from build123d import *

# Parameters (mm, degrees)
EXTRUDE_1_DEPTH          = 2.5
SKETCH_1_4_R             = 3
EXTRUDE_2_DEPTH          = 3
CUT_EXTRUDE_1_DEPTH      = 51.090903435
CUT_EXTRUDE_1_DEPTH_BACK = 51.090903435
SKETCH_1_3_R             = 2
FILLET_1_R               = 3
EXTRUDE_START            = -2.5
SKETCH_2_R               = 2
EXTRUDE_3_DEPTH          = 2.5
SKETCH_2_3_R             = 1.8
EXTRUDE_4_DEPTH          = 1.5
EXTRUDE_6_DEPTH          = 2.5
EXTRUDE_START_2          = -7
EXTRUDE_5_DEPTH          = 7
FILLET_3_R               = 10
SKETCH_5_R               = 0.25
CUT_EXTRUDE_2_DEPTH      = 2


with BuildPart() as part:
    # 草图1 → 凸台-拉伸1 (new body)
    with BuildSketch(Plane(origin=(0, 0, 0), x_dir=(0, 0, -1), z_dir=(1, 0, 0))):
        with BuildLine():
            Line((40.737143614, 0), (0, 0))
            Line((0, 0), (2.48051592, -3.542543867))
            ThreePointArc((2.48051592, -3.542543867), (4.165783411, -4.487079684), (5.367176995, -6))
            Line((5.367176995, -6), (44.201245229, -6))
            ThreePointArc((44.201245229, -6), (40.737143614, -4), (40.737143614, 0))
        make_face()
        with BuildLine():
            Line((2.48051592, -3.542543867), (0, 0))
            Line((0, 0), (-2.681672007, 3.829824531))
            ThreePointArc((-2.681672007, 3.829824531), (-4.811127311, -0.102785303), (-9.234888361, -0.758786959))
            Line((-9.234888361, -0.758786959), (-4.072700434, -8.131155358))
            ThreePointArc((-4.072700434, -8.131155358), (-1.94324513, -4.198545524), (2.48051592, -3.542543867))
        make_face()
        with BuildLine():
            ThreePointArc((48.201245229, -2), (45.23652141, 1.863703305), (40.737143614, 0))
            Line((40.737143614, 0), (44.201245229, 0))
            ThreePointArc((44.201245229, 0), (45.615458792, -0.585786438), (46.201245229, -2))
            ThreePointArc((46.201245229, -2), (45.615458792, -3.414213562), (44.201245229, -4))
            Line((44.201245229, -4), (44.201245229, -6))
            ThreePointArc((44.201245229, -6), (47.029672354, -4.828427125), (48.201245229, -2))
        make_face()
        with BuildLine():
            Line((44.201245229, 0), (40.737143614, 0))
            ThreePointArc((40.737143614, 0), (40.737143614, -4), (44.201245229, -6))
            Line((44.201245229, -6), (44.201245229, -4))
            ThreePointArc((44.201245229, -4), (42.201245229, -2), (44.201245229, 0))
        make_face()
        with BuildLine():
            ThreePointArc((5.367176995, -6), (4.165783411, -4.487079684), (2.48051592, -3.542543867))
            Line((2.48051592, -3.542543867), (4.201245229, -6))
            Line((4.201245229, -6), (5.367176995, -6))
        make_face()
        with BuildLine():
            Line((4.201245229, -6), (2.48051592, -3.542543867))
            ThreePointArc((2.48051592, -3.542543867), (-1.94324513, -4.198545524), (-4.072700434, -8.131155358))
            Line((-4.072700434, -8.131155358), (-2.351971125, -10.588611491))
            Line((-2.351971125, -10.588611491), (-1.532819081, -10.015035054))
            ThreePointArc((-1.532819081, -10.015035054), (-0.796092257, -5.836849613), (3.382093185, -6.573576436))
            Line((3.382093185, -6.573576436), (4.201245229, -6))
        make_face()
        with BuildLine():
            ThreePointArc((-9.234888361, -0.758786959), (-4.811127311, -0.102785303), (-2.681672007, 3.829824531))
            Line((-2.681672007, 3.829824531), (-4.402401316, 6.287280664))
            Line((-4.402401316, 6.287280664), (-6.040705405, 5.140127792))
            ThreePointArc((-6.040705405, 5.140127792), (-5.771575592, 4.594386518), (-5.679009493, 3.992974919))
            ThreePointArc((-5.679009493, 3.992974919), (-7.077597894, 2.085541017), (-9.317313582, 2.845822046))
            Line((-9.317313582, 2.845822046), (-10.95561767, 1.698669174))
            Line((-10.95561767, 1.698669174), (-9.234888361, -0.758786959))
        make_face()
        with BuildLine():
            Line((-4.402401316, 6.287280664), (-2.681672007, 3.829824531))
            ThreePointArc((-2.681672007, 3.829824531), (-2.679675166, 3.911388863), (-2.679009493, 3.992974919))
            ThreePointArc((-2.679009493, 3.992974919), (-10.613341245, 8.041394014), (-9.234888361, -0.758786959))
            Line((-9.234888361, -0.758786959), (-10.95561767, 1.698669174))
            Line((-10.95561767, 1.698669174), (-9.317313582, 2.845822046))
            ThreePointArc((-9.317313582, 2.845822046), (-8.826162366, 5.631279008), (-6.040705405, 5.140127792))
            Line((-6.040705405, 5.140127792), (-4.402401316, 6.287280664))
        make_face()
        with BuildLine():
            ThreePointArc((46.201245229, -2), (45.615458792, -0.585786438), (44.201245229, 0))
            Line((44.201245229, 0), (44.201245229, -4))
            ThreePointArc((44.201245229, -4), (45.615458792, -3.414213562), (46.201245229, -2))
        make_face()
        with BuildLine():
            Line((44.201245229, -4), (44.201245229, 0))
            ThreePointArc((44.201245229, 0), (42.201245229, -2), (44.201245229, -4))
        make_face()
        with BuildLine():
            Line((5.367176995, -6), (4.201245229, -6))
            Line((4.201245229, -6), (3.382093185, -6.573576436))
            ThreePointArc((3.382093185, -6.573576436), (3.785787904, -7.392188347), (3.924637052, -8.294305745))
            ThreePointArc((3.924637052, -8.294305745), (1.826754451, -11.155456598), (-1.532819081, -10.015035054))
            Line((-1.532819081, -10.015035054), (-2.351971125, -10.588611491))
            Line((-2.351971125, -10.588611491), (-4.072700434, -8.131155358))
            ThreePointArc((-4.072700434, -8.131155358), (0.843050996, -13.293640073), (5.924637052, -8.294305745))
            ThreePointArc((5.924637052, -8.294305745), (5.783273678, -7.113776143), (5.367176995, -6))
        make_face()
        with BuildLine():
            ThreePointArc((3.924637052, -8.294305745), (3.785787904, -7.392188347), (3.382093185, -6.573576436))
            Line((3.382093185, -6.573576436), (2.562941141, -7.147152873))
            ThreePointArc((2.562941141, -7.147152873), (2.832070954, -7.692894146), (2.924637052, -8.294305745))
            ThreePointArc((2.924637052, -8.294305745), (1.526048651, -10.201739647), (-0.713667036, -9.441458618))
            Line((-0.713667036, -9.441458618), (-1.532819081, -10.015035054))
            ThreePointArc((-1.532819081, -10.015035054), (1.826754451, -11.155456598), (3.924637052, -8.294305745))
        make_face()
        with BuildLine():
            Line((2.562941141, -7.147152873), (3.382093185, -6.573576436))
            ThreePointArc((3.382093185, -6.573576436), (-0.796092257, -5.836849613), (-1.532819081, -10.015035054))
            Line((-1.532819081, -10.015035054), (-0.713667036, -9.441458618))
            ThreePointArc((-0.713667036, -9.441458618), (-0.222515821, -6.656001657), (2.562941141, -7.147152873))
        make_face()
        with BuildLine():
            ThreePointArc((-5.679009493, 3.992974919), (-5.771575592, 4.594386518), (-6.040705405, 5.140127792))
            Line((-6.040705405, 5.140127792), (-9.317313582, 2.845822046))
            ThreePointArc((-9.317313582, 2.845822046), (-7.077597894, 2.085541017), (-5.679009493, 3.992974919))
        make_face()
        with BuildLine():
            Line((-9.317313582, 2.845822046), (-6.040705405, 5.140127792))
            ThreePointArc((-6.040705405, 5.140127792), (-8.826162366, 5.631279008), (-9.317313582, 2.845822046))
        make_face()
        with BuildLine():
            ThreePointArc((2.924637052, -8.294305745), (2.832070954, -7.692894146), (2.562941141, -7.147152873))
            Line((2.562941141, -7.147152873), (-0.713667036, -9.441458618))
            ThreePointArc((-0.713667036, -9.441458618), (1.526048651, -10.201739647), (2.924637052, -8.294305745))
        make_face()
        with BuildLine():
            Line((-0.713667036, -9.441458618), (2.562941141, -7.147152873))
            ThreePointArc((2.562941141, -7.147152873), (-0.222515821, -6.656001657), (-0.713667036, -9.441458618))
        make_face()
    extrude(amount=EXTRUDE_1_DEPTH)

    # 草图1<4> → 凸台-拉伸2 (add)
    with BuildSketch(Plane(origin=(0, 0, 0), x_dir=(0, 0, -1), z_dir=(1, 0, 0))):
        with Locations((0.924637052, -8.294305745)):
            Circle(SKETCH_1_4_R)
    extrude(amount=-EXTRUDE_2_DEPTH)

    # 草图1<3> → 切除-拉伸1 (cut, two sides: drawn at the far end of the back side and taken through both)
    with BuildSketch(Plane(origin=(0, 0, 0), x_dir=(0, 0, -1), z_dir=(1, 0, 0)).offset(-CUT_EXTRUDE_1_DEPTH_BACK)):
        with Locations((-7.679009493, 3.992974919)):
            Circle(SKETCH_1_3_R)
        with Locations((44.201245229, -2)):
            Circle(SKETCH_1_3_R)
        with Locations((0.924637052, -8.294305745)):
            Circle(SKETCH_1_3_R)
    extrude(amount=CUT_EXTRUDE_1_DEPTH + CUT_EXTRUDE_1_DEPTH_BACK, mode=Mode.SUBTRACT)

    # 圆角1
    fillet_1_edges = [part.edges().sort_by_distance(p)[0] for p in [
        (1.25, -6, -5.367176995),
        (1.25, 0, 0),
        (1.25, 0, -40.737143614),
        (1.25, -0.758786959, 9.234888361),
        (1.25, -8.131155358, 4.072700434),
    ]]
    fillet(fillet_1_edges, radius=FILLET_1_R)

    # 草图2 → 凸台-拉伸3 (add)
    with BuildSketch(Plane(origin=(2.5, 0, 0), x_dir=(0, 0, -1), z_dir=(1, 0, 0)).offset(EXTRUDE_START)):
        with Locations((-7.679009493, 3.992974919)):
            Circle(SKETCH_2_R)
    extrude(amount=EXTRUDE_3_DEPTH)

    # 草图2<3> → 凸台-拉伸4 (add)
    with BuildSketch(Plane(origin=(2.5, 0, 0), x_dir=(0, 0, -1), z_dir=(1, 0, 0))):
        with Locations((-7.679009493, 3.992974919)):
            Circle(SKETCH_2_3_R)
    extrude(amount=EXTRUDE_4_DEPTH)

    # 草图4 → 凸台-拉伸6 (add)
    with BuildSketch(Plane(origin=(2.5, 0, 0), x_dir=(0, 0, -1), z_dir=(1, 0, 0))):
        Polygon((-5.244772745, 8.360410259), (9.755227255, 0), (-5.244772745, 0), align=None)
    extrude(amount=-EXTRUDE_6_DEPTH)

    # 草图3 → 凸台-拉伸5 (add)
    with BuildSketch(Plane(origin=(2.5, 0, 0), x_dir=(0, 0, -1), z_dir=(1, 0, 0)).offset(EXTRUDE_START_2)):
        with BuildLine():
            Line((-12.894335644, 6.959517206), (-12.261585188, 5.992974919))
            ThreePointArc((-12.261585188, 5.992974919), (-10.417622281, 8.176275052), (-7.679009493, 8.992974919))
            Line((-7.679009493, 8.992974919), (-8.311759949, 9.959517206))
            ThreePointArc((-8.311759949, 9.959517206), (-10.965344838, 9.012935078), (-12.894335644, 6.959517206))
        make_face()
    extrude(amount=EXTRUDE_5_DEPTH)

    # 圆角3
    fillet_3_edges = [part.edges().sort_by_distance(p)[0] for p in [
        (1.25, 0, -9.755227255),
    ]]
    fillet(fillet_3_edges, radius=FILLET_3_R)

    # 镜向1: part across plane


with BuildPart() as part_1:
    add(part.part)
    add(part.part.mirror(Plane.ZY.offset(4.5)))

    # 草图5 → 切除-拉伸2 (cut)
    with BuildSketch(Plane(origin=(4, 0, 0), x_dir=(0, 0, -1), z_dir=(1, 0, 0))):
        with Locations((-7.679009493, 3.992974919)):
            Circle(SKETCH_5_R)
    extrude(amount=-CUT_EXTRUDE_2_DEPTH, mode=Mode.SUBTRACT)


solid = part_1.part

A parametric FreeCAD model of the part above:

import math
import FreeCAD as App
import Part
import Sketcher
Q = App.Units.Quantity


def edges_at(feature, points):
    """Names of the edges that pass closest to the given points."""
    edges = feature.Shape.Edges
    near = lambda p: min(range(len(edges)), key=lambda i: edges[i].distToShape(Part.Vertex(*p))[0])
    return sorted({f"Edge{near(p) + 1}" for p in points})

doc = App.newDocument("Part")
body = doc.addObject("PartDesign::Body", "Body")

# Sketch on YZ plane
sketch1 = body.newObject("Sketcher::SketchObject", "Sketch")
sketch1.AttachmentSupport = (doc.getObject("YZ_Plane"), [""])
sketch1.MapMode = "FlatFace"
sketch1.addGeometry([
    Part.LineSegment(App.Vector(0, -40.737144, 0), App.Vector(0, 0, 0)),  # 0
    Part.LineSegment(App.Vector(0, 0, 0), App.Vector(3.829825, 2.681672, 0)),  # 1
    Part.ArcOfCircle(Part.Circle(App.Vector(3.992975, 7.679011, 0), App.Vector(0, 0, 1), 5.000001), math.radians(-91.869898), math.radians(-90)),  # 2
    Part.ArcOfCircle(Part.Circle(App.Vector(3.992975, 7.679009, 0), App.Vector(0, 0, 1), 5), math.radians(-90), math.radians(161.869898)),  # 3
    Part.LineSegment(App.Vector(-0.758787, 9.234888, 0), App.Vector(-8.131155, 4.0727, 0)),  # 4
    Part.ArcOfCircle(Part.Circle(App.Vector(-8.294306, -0.924637, 0), App.Vector(0, 0, 1), 5), math.radians(88.130102), math.radians(270)),  # 5
    Part.ArcOfCircle(Part.Circle(App.Vector(-8.294306, -0.924637, 0), App.Vector(0, 0, 1), 5), math.radians(-90), math.radians(-62.686356)),  # 6
    Part.LineSegment(App.Vector(-6, -5.367177, 0), App.Vector(-6, -44.201245, 0)),  # 7
    Part.ArcOfCircle(Part.Circle(App.Vector(-2, -44.201245, 0), App.Vector(0, 0, 1), 4), math.radians(180), math.radians(270)),  # 8
    Part.ArcOfCircle(Part.Circle(App.Vector(-2, -44.201245, 0), App.Vector(0, 0, 1), 4), math.radians(-90), math.radians(60)),  # 9
], False)
sketch1.addConstraint([
    Sketcher.Constraint("Coincident", 0, 2, 1, 1),
    Sketcher.Constraint("Coincident", 1, 2, 2, 1),
    Sketcher.Constraint("Tangent", 2, 2, 3, 1),
    Sketcher.Constraint("Coincident", 3, 2, 4, 1),
    Sketcher.Constraint("Coincident", 4, 2, 5, 1),
    Sketcher.Constraint("Tangent", 5, 2, 6, 1),
    Sketcher.Constraint("Coincident", 6, 2, 7, 1),
    Sketcher.Constraint("Tangent", 7, 2, 8, 1),
    Sketcher.Constraint("Tangent", 8, 2, 9, 1),
    Sketcher.Constraint("Coincident", 9, 2, 0, 1),
    Sketcher.Constraint("Vertical", 0),
    Sketcher.Constraint("Vertical", 7),
    Sketcher.Constraint("Coincident", 0, 2, -1, 1),
    Sketcher.Constraint("Equal", 2, 3),
    Sketcher.Constraint("Equal", 3, 5),
    Sketcher.Constraint("Equal", 5, 6),
    Sketcher.Constraint("Equal", 8, 9),
    Sketcher.Constraint("Parallel", 1, 4),
    Sketcher.Constraint("Vertical", 3, 3, 2, 2),
    Sketcher.Constraint("Vertical", 6, 3, 5, 2),
    Sketcher.Constraint("Vertical", 9, 3, 8, 2),
    Sketcher.Constraint("Radius", 2, 5.000001),
    Sketcher.Constraint("Radius", 8, 4.0),
    Sketcher.Constraint("Angle", 1, Q("35 deg")),
    Sketcher.Constraint("Distance", 4, 9.0),
    Sketcher.Constraint("DistanceX", 8, 3, -1, 1, 2.0),
    Sketcher.Constraint("DistanceY", 7, 2, 7, 1, 38.834068),
    Sketcher.Constraint("DistanceY", -1, 1, 4, 2, 4.0727),
    Sketcher.Constraint("DistanceY", 0, 1, 0, 2, 40.737144),
    Sketcher.Constraint("DistanceY", -1, 1, 2, 3, 7.679011),
    Sketcher.Constraint("DistanceX", 5, 3, 3, 3, 12.287281),
])
pad1 = body.newObject("PartDesign::Pad", "Pad")
pad1.Profile = sketch1
pad1.Length = 2.5

# Sketch on YZ plane
sketch2 = body.newObject("Sketcher::SketchObject", "Sketch001")
sketch2.AttachmentSupport = (doc.getObject("YZ_Plane"), [""])
sketch2.MapMode = "FlatFace"
sketch2.addGeometry(Part.Circle(App.Vector(-8.294306, -0.924637, 0), App.Vector(0, 0, 1), 3), False)
sketch2.addConstraint([
    Sketcher.Constraint("Diameter", 0, 6.0),
    Sketcher.Constraint("DistanceX", 0, 3, -1, 1, 8.294306),
    Sketcher.Constraint("DistanceY", 0, 3, -1, 1, 0.924637),
])
pad2 = body.newObject("PartDesign::Pad", "Pad001")
pad2.Profile = sketch2
pad2.Length = 3
pad2.Reversed = True

# Sketch on YZ plane
sketch3 = body.newObject("Sketcher::SketchObject", "Sketch002")
sketch3.AttachmentSupport = (doc.getObject("YZ_Plane"), [""])
sketch3.MapMode = "FlatFace"
sketch3.addGeometry([
    Part.Circle(App.Vector(3.992975, 7.679009, 0), App.Vector(0, 0, 1), 2),
    Part.Circle(App.Vector(-2, -44.201245, 0), App.Vector(0, 0, 1), 2),
    Part.Circle(App.Vector(-8.294306, -0.924637, 0), App.Vector(0, 0, 1), 2),
], False)
sketch3.addConstraint([
    Sketcher.Constraint("Equal", 0, 1),
    Sketcher.Constraint("Equal", 1, 2),
    Sketcher.Constraint("Diameter", 0, 4.0),
    Sketcher.Constraint("DistanceX", 1, 3, -1, 1, 2.0),
    Sketcher.Constraint("DistanceY", -1, 1, 0, 3, 7.679009),
    Sketcher.Constraint("DistanceX", 2, 3, 0, 3, 12.287281),
    Sketcher.Constraint("DistanceY", 1, 3, 2, 3, 43.276608),
    Sketcher.Constraint("DistanceX", -1, 1, 0, 3, 3.992975),
    Sketcher.Constraint("DistanceY", 1, 3, -1, 1, 44.201245),
])
pocket1 = body.newObject("PartDesign::Pocket", "Pocket")
pocket1.Profile = sketch3
pocket1.Type = "ThroughAll"
pocket1.Midplane = True
doc.recompute()

fillet = body.newObject("PartDesign::Fillet", "Fillet")
fillet.Base = (pocket1, edges_at(pocket1, [
    (1.25, -6, -5.367),
    (1.25, 0, 0),
    (1.25, 0, -40.737),
    (1.25, -0.759, 9.235),
    (1.25, -8.131, 4.073),
]))
fillet.Radius = 3

# Sketch on YZ plane
sketch4 = body.newObject("Sketcher::SketchObject", "Sketch003")
sketch4.AttachmentSupport = (doc.getObject("YZ_Plane"), [""])
sketch4.MapMode = "FlatFace"
sketch4.addGeometry(Part.Circle(App.Vector(3.992975, 7.679009, 0), App.Vector(0, 0, 1), 2), False)
sketch4.addConstraint([
    Sketcher.Constraint("Diameter", 0, 4.0),
    Sketcher.Constraint("DistanceY", -1, 1, 0, 3, 7.679009),
    Sketcher.Constraint("DistanceX", -1, 1, 0, 3, 3.992975),
])
pad3 = body.newObject("PartDesign::Pad", "Pad002")
pad3.Profile = sketch4
pad3.Length = 2.5

# Sketch on YZ plane
sketch5 = body.newObject("Sketcher::SketchObject", "Sketch004")
sketch5.AttachmentSupport = (doc.getObject("YZ_Plane"), [""])
sketch5.MapMode = "FlatFace"
sketch5.AttachmentOffset = App.Placement(App.Vector(0, 0, 2.5), App.Rotation())
sketch5.addGeometry(Part.Circle(App.Vector(3.992975, 7.679009, 0), App.Vector(0, 0, 1), 1.8), False)
sketch5.addConstraint([
    Sketcher.Constraint("Diameter", 0, 3.6),
    Sketcher.Constraint("DistanceY", -1, 1, 0, 3, 7.679009),
    Sketcher.Constraint("DistanceX", -1, 1, 0, 3, 3.992975),
])
pad4 = body.newObject("PartDesign::Pad", "Pad003")
pad4.Profile = sketch5
pad4.Length = 1.5

# Sketch on YZ plane
sketch6 = body.newObject("Sketcher::SketchObject", "Sketch005")
sketch6.AttachmentSupport = (doc.getObject("YZ_Plane"), [""])
sketch6.MapMode = "FlatFace"
sketch6.AttachmentOffset = App.Placement(App.Vector(0, 0, 2.5), App.Rotation())
sketch6.addGeometry([
    Part.LineSegment(App.Vector(0, -9.755227, 0), App.Vector(8.36041, 5.244773, 0)),
    Part.LineSegment(App.Vector(8.36041, 5.244773, 0), App.Vector(0, 5.244773, 0)),
    Part.LineSegment(App.Vector(0, 5.244773, 0), App.Vector(0, -9.755227, 0)),
], False)
sketch6.addConstraint([
    Sketcher.Constraint("Coincident", 0, 2, 1, 1),
    Sketcher.Constraint("Coincident", 1, 2, 2, 1),
    Sketcher.Constraint("Coincident", 2, 2, 0, 1),
    Sketcher.Constraint("Horizontal", 1),
    Sketcher.Constraint("Vertical", 2),
    Sketcher.Constraint("PointOnObject", 1, 2, -2),
    Sketcher.Constraint("DistanceY", 2, 2, 2, 1, 15.0),
    Sketcher.Constraint("DistanceX", 1, 2, 1, 1, 8.36041),
    Sketcher.Constraint("DistanceY", -1, 1, 0, 2, 5.244773),
])
pad5 = body.newObject("PartDesign::Pad", "Pad004")
pad5.Profile = sketch6
pad5.Length = 2.5
pad5.Reversed = True

# Sketch on YZ plane
sketch7 = body.newObject("Sketcher::SketchObject", "Sketch006")
sketch7.AttachmentSupport = (doc.getObject("YZ_Plane"), [""])
sketch7.MapMode = "FlatFace"
sketch7.AttachmentOffset = App.Placement(App.Vector(0, 0, -4.5), App.Rotation())
sketch7.addGeometry([
    Part.LineSegment(App.Vector(6.959517, 12.894336, 0), App.Vector(5.992975, 12.261585, 0)),
    Part.ArcOfCircle(Part.Circle(App.Vector(3.992975, 7.679009, 0), App.Vector(0, 0, 1), 5), math.radians(0), math.radians(66.421822)),
    Part.LineSegment(App.Vector(8.992975, 7.679009, 0), App.Vector(9.959517, 8.31176, 0)),
    Part.ArcOfCircle(Part.Circle(App.Vector(3.992975, 7.679009, 0), App.Vector(0, 0, 1), 6), math.radians(6.053578), math.radians(60.368243)),
], False)
sketch7.addConstraint([
    Sketcher.Constraint("Coincident", 0, 2, 1, 2),
    Sketcher.Constraint("Coincident", 1, 1, 2, 1),
    Sketcher.Constraint("Coincident", 2, 2, 3, 1),
    Sketcher.Constraint("Coincident", 3, 2, 0, 1),
    Sketcher.Constraint("Coincident", 3, 3, 1, 3),
    Sketcher.Constraint("Parallel", 0, 2),
    Sketcher.Constraint("Horizontal", 3, 3, 1, 1),
    Sketcher.Constraint("Equal", 0, 2),
    Sketcher.Constraint("Radius", 1, 5.0),
    Sketcher.Constraint("Radius", 3, 6.0),
    Sketcher.Constraint("DistanceX", 1, 3, 0, 2, 2.0),
    Sketcher.Constraint("DistanceY", -1, 1, 1, 3, 7.679009),
    Sketcher.Constraint("DistanceX", -1, 1, 1, 3, 3.992975),
])
pad6 = body.newObject("PartDesign::Pad", "Pad005")
pad6.Profile = sketch7
pad6.Length = 7
doc.recompute()

fillet2 = body.newObject("PartDesign::Fillet", "Fillet001")
fillet2.Base = (pad6, edges_at(pad6, [(1.25, 0, -9.755)]))
fillet2.Radius = 10
body2 = doc.addObject("PartDesign::Body", "Body001")
doc.recompute()

body2.BaseFeature = body
doc.recompute()

mirroring = doc.addObject("Part::Mirroring", "Mirroring")
mirroring.Source = body
mirroring.Base = App.Vector(-4.5, 0, 0)
mirroring.Normal = App.Vector(-1, 0, 0)
body3 = doc.addObject("PartDesign::Body", "Body002")
body3.BaseFeature = mirroring
boolean = body2.newObject("PartDesign::Boolean", "Boolean")
boolean.Type = "Fuse"
boolean.addObjects([body3])
doc.recompute()

# Sketch on YZ plane
sketch8 = body2.newObject("Sketcher::SketchObject", "Sketch007")
sketch8.AttachmentSupport = (doc.getObject("YZ_Plane001"), [""])
sketch8.MapMode = "FlatFace"
sketch8.AttachmentOffset = App.Placement(App.Vector(0, 0, 4), App.Rotation())
sketch8.addGeometry(Part.Circle(App.Vector(3.992975, 7.679009, 0), App.Vector(0, 0, 1), 0.25), False)
sketch8.addConstraint([
    Sketcher.Constraint("Diameter", 0, 0.5),
    Sketcher.Constraint("DistanceY", -1, 1, 0, 3, 7.679009),
    Sketcher.Constraint("DistanceX", -1, 1, 0, 3, 3.992975),
])
pocket2 = body2.newObject("PartDesign::Pocket", "Pocket001")
pocket2.Profile = sketch8
pocket2.Length = 2
mirroring.Visibility = False

doc.recompute()
